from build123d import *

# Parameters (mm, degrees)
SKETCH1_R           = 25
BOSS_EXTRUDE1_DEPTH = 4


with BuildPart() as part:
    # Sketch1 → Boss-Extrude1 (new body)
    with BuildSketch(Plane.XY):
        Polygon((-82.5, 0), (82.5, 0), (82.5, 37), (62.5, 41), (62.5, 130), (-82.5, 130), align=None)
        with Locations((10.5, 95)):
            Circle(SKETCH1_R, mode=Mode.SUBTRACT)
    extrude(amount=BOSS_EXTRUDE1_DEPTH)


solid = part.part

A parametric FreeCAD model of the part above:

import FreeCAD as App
import Part
import Sketcher
from FreeCAD import Vector
Q = App.Units.Quantity


def add_polygon(sketch, points):
    """Adds a closed chain of lines whose ends are joined by coincident constraints."""
    first, n = sketch.GeometryCount, len(points)
    for a, b in zip(points, points[1:] + points[:1]):
        sketch.addGeometry(Part.LineSegment(App.Vector(*a, 0), App.Vector(*b, 0)), False)
    for i in range(n):
        sketch.addConstraint(Sketcher.Constraint("Coincident", first + i, 2, first + (i + 1) % n, 1))

doc = App.newDocument("Part")
body = doc.addObject("PartDesign::Body", "Body")

# Sketch on XY plane
sketch1 = body.newObject("Sketcher::SketchObject", "Sketch")
sketch1.AttachmentSupport = (doc.getObject("XY_Plane"), [""])
sketch1.MapMode = "FlatFace"
add_polygon(sketch1, [(-82, 0), (82, 0), (82, 37), (62, 41), (62, 130), (-82, 130)])  # lines 0-5
sketch1.addGeometry(Part.Circle(Vector(10, 95, 0), Vector(0, 0, 1), 25), False)  # 6
sketch1.addConstraint([
    Sketcher.Constraint("Horizontal", 0),
    Sketcher.Constraint("Vertical", 1),
    Sketcher.Constraint("Vertical", 3),
    Sketcher.Constraint("Horizontal", 4),
    Sketcher.Constraint("Vertical", 5),
    Sketcher.Constraint("Symmetric", 0, 2, 5, 2, -1, 1),
    Sketcher.Constraint("Diameter", 6, Q("50 mm")),
    Sketcher.Constraint("DistanceX", 0, 1, 0, 2, Q("165 mm")),
    Sketcher.Constraint("DistanceX", 4, 2, 4, 1, Q("145 mm")),
    Sketcher.Constraint("DistanceY", 1, 1, 1, 2, Q("37 mm")),
    Sketcher.Constraint("DistanceY", 3, 1, 3, 2, Q("89 mm")),
    Sketcher.Constraint("DistanceY", 5, 2, 5, 1, Q("130 mm")),
    Sketcher.Constraint("DistanceY", -1, 1, 6, 3, Q("95 mm")),
    Sketcher.Constraint("DistanceX", 6, 3, 0, 2, Q("72 mm")),
])
pad1 = body.newObject("PartDesign::Pad", "Pad")
pad1.Profile = sketch1
pad1.Length = 4

doc.recompute()
